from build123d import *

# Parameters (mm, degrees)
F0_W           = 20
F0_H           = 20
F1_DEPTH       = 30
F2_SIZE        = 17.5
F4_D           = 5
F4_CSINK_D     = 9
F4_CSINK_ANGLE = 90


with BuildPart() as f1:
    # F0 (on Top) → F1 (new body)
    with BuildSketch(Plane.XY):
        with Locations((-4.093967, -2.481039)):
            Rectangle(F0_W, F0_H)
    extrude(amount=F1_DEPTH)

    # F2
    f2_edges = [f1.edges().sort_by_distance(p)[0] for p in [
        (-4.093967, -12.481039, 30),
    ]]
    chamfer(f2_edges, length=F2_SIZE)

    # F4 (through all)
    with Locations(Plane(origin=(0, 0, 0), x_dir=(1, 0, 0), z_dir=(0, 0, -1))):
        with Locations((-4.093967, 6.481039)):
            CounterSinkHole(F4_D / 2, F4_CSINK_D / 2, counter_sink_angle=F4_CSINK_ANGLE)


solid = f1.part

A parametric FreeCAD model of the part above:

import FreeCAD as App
import Part
import Sketcher

V = App.Vector
Q = App.Units.Quantity


def edges_at(feature, points):
    """Names of the edges that pass closest to the given points."""
    edges = feature.Shape.Edges
    near = lambda p: min(range(len(edges)), key=lambda i: edges[i].distToShape(Part.Vertex(*p))[0])
    return sorted({f"Edge{near(p) + 1}" for p in points})


def add_polygon(sketch, points):
    """Adds a closed chain of lines whose ends are joined by coincident constraints."""
    first, n = sketch.GeometryCount, len(points)
    for a, b in zip(points, points[1:] + points[:1]):
        sketch.addGeometry(Part.LineSegment(App.Vector(*a, 0), App.Vector(*b, 0)), False)
    for i in range(n):
        sketch.addConstraint(Sketcher.Constraint("Coincident", first + i, 2, first + (i + 1) % n, 1))

doc = App.newDocument("Part")
body = doc.addObject("PartDesign::Body", "Body")

sketch1 = body.newObject("Sketcher::SketchObject", "Sketch")
sketch1.AttachmentSupport = (doc.getObject("XY_Plane"), [""])
sketch1.MapMode = "FlatFace"
add_polygon(sketch1, [(-14.093967, 7.518961), (-14.093967, -12.481039), (5.906033, -12.481039), (5.906033, 7.518961)])
sketch1.addConstraint([
    Sketcher.Constraint("Vertical", 0),
    Sketcher.Constraint("Horizontal", 1),
    Sketcher.Constraint("Vertical", 2),
    Sketcher.Constraint("Horizontal", 3),
    Sketcher.Constraint("Equal", 3, 0),
    Sketcher.Constraint("DistanceX", 1, 1, 1, 2, Q("20 mm")),
    Sketcher.Constraint("DistanceY", 0, 2, -1, 1, Q("12.481039 mm")),
    Sketcher.Constraint("DistanceX", 0, 2, -1, 1, Q("14.093967 mm")),
])
pad1 = body.newObject("PartDesign::Pad", "Pad")
pad1.Profile = sketch1
pad1.Length = 30
doc.recompute()

chamfer = body.newObject("PartDesign::Chamfer", "Chamfer")
chamfer.Base = (pad1, edges_at(pad1, [(-4.094, -12.481, 30)]))
chamfer.Size = 17.5

sketch2 = body.newObject("Sketcher::SketchObject", "Sketch001")
sketch2.AttachmentSupport = (doc.getObject("XY_Plane"), [""])
sketch2.MapMode = "FlatFace"
sketch2.addGeometry(Part.Circle(V(-4.093967, -6.481039, 0), V(0, 0, 1), 2.5), False)
sketch2.addConstraint([
    Sketcher.Constraint("Diameter", 0, Q("5 mm")),
    Sketcher.Constraint("DistanceY", 0, 3, -1, 1, Q("6.481039 mm")),
    Sketcher.Constraint("DistanceX", 0, 3, -1, 1, Q("4.093967 mm")),
])
doc.recompute()
hole = body.newObject("PartDesign::Hole", "Hole")
hole.Profile = sketch2
hole.ThreadType = "None"
hole.Diameter = 5
hole.DepthType = "ThroughAll"
hole.HoleCutType = "Countersink"
hole.HoleCutDiameter = 9
hole.HoleCutCountersinkAngle = 90
hole.Reversed = True

doc.recompute()
